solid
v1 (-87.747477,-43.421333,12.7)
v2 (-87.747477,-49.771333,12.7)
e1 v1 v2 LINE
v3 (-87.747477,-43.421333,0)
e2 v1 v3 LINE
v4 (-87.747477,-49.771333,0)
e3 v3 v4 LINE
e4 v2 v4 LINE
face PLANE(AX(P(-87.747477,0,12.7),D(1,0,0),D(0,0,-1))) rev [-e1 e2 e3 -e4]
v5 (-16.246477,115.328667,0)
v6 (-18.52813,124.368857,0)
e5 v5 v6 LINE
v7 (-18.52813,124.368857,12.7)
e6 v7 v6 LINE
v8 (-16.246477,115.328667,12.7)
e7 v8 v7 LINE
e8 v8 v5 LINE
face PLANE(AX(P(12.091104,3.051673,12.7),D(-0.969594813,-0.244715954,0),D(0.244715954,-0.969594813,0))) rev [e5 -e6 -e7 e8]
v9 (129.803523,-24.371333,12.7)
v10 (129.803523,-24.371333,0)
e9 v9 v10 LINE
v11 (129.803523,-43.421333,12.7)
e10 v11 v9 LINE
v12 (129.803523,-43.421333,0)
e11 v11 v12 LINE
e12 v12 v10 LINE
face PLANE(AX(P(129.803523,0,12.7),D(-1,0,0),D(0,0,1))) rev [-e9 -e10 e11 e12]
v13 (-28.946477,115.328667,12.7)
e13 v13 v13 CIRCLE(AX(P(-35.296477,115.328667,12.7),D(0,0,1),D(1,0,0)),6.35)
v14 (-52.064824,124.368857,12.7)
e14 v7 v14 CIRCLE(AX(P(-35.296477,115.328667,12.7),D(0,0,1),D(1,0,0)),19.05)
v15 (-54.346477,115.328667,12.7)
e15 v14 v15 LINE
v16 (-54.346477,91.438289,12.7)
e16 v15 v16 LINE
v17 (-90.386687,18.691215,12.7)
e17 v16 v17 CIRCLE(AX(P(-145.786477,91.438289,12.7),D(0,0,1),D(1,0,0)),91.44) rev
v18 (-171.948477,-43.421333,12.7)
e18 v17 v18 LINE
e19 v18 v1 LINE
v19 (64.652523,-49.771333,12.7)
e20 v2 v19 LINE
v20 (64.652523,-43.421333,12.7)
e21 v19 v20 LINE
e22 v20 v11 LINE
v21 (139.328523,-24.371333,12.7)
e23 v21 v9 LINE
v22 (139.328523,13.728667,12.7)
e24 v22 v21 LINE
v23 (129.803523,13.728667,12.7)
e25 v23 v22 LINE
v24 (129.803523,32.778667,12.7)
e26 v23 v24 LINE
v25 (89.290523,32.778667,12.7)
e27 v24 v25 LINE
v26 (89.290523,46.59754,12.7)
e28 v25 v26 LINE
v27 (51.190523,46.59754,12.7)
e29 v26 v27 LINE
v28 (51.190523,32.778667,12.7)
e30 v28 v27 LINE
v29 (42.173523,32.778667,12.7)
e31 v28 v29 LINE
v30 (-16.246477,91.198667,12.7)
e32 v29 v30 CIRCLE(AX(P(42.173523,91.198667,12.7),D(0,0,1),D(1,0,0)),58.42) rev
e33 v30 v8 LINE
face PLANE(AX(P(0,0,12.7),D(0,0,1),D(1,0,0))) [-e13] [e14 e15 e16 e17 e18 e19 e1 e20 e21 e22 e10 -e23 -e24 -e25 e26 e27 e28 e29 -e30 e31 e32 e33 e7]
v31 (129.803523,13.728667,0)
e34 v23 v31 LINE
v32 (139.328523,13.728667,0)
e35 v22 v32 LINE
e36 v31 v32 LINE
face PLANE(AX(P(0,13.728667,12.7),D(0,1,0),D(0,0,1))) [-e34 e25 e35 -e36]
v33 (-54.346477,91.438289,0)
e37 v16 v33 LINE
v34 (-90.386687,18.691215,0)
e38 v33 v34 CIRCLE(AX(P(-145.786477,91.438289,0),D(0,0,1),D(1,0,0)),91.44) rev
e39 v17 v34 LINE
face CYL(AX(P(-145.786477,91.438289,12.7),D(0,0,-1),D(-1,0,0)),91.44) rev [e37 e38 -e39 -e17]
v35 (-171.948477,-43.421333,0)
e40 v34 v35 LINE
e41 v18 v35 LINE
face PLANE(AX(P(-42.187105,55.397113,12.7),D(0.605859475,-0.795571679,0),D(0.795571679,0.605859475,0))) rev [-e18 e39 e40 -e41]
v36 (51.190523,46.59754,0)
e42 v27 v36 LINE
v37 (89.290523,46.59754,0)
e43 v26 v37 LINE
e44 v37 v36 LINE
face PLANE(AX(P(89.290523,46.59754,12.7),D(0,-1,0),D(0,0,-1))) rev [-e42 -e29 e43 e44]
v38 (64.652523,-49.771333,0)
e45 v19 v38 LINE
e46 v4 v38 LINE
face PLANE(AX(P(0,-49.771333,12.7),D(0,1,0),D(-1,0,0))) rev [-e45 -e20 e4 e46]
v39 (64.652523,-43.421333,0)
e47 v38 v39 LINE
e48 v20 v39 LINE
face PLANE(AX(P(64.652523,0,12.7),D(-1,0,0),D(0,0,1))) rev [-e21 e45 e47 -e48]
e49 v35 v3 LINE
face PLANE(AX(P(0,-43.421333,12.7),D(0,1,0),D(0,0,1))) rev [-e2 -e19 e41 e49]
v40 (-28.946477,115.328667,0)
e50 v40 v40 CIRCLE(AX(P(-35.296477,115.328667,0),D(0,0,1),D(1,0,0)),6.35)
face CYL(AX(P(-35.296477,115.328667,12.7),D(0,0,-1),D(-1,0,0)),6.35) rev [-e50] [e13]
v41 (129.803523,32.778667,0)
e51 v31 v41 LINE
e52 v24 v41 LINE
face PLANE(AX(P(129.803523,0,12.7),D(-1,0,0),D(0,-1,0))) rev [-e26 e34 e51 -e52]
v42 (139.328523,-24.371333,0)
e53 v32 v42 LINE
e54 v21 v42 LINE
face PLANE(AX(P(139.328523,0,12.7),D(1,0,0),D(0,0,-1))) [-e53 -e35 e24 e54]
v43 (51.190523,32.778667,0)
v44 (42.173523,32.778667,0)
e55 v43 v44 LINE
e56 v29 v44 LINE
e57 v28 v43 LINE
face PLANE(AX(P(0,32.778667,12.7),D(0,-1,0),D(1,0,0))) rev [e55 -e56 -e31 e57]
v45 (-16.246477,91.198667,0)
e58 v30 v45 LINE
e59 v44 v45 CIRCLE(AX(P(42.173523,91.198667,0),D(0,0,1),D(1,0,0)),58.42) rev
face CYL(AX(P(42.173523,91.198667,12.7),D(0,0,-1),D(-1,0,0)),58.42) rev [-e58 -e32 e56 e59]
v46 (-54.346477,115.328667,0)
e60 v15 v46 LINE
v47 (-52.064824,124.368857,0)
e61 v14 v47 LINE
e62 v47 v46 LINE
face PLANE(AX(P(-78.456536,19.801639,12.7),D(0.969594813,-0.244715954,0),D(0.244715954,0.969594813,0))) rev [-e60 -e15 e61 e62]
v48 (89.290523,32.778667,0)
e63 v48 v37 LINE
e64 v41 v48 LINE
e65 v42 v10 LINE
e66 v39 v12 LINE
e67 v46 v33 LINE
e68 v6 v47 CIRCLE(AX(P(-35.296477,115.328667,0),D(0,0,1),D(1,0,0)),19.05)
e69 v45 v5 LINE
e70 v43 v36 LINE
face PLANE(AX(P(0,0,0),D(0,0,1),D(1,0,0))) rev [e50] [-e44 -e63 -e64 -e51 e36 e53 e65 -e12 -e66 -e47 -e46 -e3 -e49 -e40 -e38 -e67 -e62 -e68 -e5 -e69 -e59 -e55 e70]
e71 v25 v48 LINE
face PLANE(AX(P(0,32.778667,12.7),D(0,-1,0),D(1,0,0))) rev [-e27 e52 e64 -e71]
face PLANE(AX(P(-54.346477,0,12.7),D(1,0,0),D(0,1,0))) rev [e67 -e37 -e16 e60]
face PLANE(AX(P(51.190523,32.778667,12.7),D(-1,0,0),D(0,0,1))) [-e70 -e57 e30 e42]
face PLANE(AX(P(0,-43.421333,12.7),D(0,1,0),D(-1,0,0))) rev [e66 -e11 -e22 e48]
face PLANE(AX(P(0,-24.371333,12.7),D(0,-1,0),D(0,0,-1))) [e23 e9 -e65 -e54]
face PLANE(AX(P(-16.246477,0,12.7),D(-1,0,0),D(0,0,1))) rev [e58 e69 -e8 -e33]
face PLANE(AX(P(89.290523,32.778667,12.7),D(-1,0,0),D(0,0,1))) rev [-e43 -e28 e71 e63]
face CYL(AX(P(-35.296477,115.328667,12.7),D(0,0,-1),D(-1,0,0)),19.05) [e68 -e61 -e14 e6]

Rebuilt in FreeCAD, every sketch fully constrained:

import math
import FreeCAD as App
import Part
import Sketcher

V = App.Vector
Q = App.Units.Quantity

doc = App.newDocument("Part")
body = doc.addObject("PartDesign::Body", "Body")

# Sketch on XY plane
sketch1 = body.newObject("Sketcher::SketchObject", "Sketch")
sketch1.AttachmentSupport = (doc.getObject("XY_Plane"), [""])
sketch1.MapMode = "FlatFace"
sketch1.addGeometry(Part.LineSegment(V(130, 14, 0), V(130, 33, 0)), False)
sketch1.addGeometry(Part.LineSegment(V(130, 33, 0), V(89, 33, 0)), False)
sketch1.addGeometry(Part.LineSegment(V(89, 33, 0), V(89, 47, 0)), False)
sketch1.addGeometry(Part.LineSegment(V(89, 47, 0), V(51, 47, 0)), False)
sketch1.addGeometry(Part.LineSegment(V(51, 47, 0), V(51, 33, 0)), False)
sketch1.addGeometry(Part.LineSegment(V(51, 33, 0), V(42, 33, 0)), False)
sketch1.addGeometry(Part.ArcOfCircle(Part.Circle(V(42, 91, 0), V(0, 0, 1), 58), math.radians(-180), math.radians(-90)), False)
sketch1.addGeometry(Part.LineSegment(V(-16, 91, 0), V(-16, 115, 0)), False)
sketch1.addGeometry(Part.LineSegment(V(-16, 115, 0), V(-19, 124, 0)), False)
sketch1.addGeometry(Part.ArcOfCircle(Part.Circle(V(-35, 115, 0), V(0, 0, 1), 19), math.radians(28), math.radians(152)), False)
sketch1.addGeometry(Part.LineSegment(V(-52, 124, 0), V(-54, 115, 0)), False)
sketch1.addGeometry(Part.LineSegment(V(-54, 115, 0), V(-54, 91, 0)), False)
sketch1.addGeometry(Part.ArcOfCircle(Part.Circle(V(-146, 91, 0), V(0, 0, 1), 91), math.radians(-53), math.radians(0)), False)
sketch1.addGeometry(Part.LineSegment(V(-90, 19, 0), V(-172, -43, 0)), False)
sketch1.addGeometry(Part.LineSegment(V(-172, -43, 0), V(-88, -43, 0)), False)
sketch1.addGeometry(Part.LineSegment(V(-88, -43, 0), V(-88, -50, 0)), False)
sketch1.addGeometry(Part.LineSegment(V(-88, -50, 0), V(65, -50, 0)), False)
sketch1.addGeometry(Part.LineSegment(V(65, -50, 0), V(65, -43, 0)), False)
sketch1.addGeometry(Part.LineSegment(V(65, -43, 0), V(130, -43, 0)), False)
sketch1.addGeometry(Part.LineSegment(V(130, -43, 0), V(130, -24, 0)), False)
sketch1.addGeometry(Part.LineSegment(V(130, -24, 0), V(139, -24, 0)), False)
sketch1.addGeometry(Part.LineSegment(V(139, -24, 0), V(139, 14, 0)), False)
sketch1.addGeometry(Part.LineSegment(V(139, 14, 0), V(130, 14, 0)), False)
sketch1.addGeometry(Part.Circle(V(-35, 115, 0), V(0, 0, 1), 6), False)
sketch1.addConstraint(Sketcher.Constraint("Coincident", 0, 2, 1, 1))
sketch1.addConstraint(Sketcher.Constraint("Coincident", 1, 2, 2, 1))
sketch1.addConstraint(Sketcher.Constraint("Coincident", 2, 2, 3, 1))
sketch1.addConstraint(Sketcher.Constraint("Coincident", 3, 2, 4, 1))
sketch1.addConstraint(Sketcher.Constraint("Coincident", 4, 2, 5, 1))
sketch1.addConstraint(Sketcher.Constraint("Tangent", 5, 2, 6, 2))
sketch1.addConstraint(Sketcher.Constraint("Tangent", 6, 1, 7, 1))
sketch1.addConstraint(Sketcher.Constraint("Coincident", 7, 2, 8, 1))
sketch1.addConstraint(Sketcher.Constraint("Coincident", 8, 2, 9, 1))
sketch1.addConstraint(Sketcher.Constraint("Coincident", 9, 2, 10, 1))
sketch1.addConstraint(Sketcher.Constraint("Coincident", 10, 2, 11, 1))
sketch1.addConstraint(Sketcher.Constraint("Tangent", 11, 2, 12, 2))
sketch1.addConstraint(Sketcher.Constraint("Tangent", 12, 1, 13, 1))
sketch1.addConstraint(Sketcher.Constraint("Coincident", 13, 2, 14, 1))
sketch1.addConstraint(Sketcher.Constraint("Coincident", 14, 2, 15, 1))
sketch1.addConstraint(Sketcher.Constraint("Coincident", 15, 2, 16, 1))
sketch1.addConstraint(Sketcher.Constraint("Coincident", 16, 2, 17, 1))
sketch1.addConstraint(Sketcher.Constraint("Coincident", 17, 2, 18, 1))
sketch1.addConstraint(Sketcher.Constraint("Coincident", 18, 2, 19, 1))
sketch1.addConstraint(Sketcher.Constraint("Coincident", 19, 2, 20, 1))
sketch1.addConstraint(Sketcher.Constraint("Coincident", 20, 2, 21, 1))
sketch1.addConstraint(Sketcher.Constraint("Coincident", 21, 2, 22, 1))
sketch1.addConstraint(Sketcher.Constraint("Coincident", 22, 2, 0, 1))
sketch1.addConstraint(Sketcher.Constraint("Vertical", 0))
sketch1.addConstraint(Sketcher.Constraint("Horizontal", 1))
sketch1.addConstraint(Sketcher.Constraint("Vertical", 2))
sketch1.addConstraint(Sketcher.Constraint("Horizontal", 3))
sketch1.addConstraint(Sketcher.Constraint("Vertical", 4))
sketch1.addConstraint(Sketcher.Constraint("Horizontal", 5))
sketch1.addConstraint(Sketcher.Constraint("Vertical", 7))
sketch1.addConstraint(Sketcher.Constraint("Vertical", 11))
sketch1.addConstraint(Sketcher.Constraint("Horizontal", 14))
sketch1.addConstraint(Sketcher.Constraint("Vertical", 15))
sketch1.addConstraint(Sketcher.Constraint("Horizontal", 16))
sketch1.addConstraint(Sketcher.Constraint("Vertical", 17))
sketch1.addConstraint(Sketcher.Constraint("Horizontal", 18))
sketch1.addConstraint(Sketcher.Constraint("Vertical", 19))
sketch1.addConstraint(Sketcher.Constraint("Horizontal", 20))
sketch1.addConstraint(Sketcher.Constraint("Vertical", 21))
sketch1.addConstraint(Sketcher.Constraint("Horizontal", 22))
sketch1.addConstraint(Sketcher.Constraint("Coincident", 23, 3, 9, 3))
sketch1.addConstraint(Sketcher.Constraint("Horizontal", 1, 2, 4, 2))
sketch1.addConstraint(Sketcher.Constraint("Horizontal", 23, 3, 7, 2))
sketch1.addConstraint(Sketcher.Constraint("Horizontal", 8, 2, 9, 2))
sketch1.addConstraint(Sketcher.Constraint("Horizontal", 7, 2, 10, 2))
sketch1.addConstraint(Sketcher.Constraint("Horizontal", 14, 2, 17, 2))
sketch1.addConstraint(Sketcher.Constraint("Vertical", 0, 2, 18, 2))
sketch1.addConstraint(Sketcher.Constraint("Equal", 0, 19))
sketch1.addConstraint(Sketcher.Constraint("Equal", 3, 21))
sketch1.addConstraint(Sketcher.Constraint("Equal", 8, 10))
sketch1.addConstraint(Sketcher.Constraint("Diameter", 23, Q("0.5 in")))
sketch1.addConstraint(Sketcher.Constraint("Radius", 6, Q("2.3 in")))
sketch1.addConstraint(Sketcher.Constraint("Radius", 12, Q("3.6 in")))
sketch1.addConstraint(Sketcher.Constraint("DistanceX", 16, 1, 16, 2, Q("6 in")))
sketch1.addConstraint(Sketcher.Constraint("Radius", 9, Q("0.75 in")))
sketch1.addConstraint(Sketcher.Constraint("DistanceX", 3, 2, 3, 1, Q("1.5 in")))
sketch1.addConstraint(Sketcher.Constraint("DistanceY", 14, 2, 5, 2, Q("3 in")))
sketch1.addConstraint(Sketcher.Constraint("DistanceY", 16, 2, 19, 2, Q("1 in")))
sketch1.addConstraint(Sketcher.Constraint("DistanceY", 7, 1, 7, 2, Q("0.95 in")))
sketch1.addConstraint(Sketcher.Constraint("DistanceX", 12, 3, 6, 3, Q("7.4 in")))
sketch1.addConstraint(Sketcher.Constraint("DistanceX", 9, 3, 0, 2, Q("6.5 in")))
sketch1.addConstraint(Sketcher.Constraint("DistanceX", 1, 2, 1, 1, Q("1.595 in")))
sketch1.addConstraint(Sketcher.Constraint("DistanceX", 14, 1, 14, 2, Q("3.315 in")))
sketch1.addConstraint(Sketcher.Constraint("DistanceX", 18, 1, 18, 2, Q("2.565 in")))
sketch1.addConstraint(Sketcher.Constraint("DistanceX", 20, 1, 20, 2, Q("0.375 in")))
sketch1.addConstraint(Sketcher.Constraint("DistanceY", 11, 2, 11, 1, 23.890378))
sketch1.addConstraint(Sketcher.Constraint("DistanceY", 2, 1, 2, 2, 13.818872))
sketch1.addConstraint(Sketcher.Constraint("DistanceY", -1, 1, 12, 3, 91.438289))
sketch1.addConstraint(Sketcher.Constraint("DistanceX", 8, 2, -1, 1, 18.52813))
sketch1.addConstraint(Sketcher.Constraint("DistanceY", 7, 2, 8, 2, 9.04019))
pad1 = body.newObject("PartDesign::Pad", "Pad")
pad1.Profile = sketch1
pad1.Length = Q("0.5 in")

doc.recompute()
